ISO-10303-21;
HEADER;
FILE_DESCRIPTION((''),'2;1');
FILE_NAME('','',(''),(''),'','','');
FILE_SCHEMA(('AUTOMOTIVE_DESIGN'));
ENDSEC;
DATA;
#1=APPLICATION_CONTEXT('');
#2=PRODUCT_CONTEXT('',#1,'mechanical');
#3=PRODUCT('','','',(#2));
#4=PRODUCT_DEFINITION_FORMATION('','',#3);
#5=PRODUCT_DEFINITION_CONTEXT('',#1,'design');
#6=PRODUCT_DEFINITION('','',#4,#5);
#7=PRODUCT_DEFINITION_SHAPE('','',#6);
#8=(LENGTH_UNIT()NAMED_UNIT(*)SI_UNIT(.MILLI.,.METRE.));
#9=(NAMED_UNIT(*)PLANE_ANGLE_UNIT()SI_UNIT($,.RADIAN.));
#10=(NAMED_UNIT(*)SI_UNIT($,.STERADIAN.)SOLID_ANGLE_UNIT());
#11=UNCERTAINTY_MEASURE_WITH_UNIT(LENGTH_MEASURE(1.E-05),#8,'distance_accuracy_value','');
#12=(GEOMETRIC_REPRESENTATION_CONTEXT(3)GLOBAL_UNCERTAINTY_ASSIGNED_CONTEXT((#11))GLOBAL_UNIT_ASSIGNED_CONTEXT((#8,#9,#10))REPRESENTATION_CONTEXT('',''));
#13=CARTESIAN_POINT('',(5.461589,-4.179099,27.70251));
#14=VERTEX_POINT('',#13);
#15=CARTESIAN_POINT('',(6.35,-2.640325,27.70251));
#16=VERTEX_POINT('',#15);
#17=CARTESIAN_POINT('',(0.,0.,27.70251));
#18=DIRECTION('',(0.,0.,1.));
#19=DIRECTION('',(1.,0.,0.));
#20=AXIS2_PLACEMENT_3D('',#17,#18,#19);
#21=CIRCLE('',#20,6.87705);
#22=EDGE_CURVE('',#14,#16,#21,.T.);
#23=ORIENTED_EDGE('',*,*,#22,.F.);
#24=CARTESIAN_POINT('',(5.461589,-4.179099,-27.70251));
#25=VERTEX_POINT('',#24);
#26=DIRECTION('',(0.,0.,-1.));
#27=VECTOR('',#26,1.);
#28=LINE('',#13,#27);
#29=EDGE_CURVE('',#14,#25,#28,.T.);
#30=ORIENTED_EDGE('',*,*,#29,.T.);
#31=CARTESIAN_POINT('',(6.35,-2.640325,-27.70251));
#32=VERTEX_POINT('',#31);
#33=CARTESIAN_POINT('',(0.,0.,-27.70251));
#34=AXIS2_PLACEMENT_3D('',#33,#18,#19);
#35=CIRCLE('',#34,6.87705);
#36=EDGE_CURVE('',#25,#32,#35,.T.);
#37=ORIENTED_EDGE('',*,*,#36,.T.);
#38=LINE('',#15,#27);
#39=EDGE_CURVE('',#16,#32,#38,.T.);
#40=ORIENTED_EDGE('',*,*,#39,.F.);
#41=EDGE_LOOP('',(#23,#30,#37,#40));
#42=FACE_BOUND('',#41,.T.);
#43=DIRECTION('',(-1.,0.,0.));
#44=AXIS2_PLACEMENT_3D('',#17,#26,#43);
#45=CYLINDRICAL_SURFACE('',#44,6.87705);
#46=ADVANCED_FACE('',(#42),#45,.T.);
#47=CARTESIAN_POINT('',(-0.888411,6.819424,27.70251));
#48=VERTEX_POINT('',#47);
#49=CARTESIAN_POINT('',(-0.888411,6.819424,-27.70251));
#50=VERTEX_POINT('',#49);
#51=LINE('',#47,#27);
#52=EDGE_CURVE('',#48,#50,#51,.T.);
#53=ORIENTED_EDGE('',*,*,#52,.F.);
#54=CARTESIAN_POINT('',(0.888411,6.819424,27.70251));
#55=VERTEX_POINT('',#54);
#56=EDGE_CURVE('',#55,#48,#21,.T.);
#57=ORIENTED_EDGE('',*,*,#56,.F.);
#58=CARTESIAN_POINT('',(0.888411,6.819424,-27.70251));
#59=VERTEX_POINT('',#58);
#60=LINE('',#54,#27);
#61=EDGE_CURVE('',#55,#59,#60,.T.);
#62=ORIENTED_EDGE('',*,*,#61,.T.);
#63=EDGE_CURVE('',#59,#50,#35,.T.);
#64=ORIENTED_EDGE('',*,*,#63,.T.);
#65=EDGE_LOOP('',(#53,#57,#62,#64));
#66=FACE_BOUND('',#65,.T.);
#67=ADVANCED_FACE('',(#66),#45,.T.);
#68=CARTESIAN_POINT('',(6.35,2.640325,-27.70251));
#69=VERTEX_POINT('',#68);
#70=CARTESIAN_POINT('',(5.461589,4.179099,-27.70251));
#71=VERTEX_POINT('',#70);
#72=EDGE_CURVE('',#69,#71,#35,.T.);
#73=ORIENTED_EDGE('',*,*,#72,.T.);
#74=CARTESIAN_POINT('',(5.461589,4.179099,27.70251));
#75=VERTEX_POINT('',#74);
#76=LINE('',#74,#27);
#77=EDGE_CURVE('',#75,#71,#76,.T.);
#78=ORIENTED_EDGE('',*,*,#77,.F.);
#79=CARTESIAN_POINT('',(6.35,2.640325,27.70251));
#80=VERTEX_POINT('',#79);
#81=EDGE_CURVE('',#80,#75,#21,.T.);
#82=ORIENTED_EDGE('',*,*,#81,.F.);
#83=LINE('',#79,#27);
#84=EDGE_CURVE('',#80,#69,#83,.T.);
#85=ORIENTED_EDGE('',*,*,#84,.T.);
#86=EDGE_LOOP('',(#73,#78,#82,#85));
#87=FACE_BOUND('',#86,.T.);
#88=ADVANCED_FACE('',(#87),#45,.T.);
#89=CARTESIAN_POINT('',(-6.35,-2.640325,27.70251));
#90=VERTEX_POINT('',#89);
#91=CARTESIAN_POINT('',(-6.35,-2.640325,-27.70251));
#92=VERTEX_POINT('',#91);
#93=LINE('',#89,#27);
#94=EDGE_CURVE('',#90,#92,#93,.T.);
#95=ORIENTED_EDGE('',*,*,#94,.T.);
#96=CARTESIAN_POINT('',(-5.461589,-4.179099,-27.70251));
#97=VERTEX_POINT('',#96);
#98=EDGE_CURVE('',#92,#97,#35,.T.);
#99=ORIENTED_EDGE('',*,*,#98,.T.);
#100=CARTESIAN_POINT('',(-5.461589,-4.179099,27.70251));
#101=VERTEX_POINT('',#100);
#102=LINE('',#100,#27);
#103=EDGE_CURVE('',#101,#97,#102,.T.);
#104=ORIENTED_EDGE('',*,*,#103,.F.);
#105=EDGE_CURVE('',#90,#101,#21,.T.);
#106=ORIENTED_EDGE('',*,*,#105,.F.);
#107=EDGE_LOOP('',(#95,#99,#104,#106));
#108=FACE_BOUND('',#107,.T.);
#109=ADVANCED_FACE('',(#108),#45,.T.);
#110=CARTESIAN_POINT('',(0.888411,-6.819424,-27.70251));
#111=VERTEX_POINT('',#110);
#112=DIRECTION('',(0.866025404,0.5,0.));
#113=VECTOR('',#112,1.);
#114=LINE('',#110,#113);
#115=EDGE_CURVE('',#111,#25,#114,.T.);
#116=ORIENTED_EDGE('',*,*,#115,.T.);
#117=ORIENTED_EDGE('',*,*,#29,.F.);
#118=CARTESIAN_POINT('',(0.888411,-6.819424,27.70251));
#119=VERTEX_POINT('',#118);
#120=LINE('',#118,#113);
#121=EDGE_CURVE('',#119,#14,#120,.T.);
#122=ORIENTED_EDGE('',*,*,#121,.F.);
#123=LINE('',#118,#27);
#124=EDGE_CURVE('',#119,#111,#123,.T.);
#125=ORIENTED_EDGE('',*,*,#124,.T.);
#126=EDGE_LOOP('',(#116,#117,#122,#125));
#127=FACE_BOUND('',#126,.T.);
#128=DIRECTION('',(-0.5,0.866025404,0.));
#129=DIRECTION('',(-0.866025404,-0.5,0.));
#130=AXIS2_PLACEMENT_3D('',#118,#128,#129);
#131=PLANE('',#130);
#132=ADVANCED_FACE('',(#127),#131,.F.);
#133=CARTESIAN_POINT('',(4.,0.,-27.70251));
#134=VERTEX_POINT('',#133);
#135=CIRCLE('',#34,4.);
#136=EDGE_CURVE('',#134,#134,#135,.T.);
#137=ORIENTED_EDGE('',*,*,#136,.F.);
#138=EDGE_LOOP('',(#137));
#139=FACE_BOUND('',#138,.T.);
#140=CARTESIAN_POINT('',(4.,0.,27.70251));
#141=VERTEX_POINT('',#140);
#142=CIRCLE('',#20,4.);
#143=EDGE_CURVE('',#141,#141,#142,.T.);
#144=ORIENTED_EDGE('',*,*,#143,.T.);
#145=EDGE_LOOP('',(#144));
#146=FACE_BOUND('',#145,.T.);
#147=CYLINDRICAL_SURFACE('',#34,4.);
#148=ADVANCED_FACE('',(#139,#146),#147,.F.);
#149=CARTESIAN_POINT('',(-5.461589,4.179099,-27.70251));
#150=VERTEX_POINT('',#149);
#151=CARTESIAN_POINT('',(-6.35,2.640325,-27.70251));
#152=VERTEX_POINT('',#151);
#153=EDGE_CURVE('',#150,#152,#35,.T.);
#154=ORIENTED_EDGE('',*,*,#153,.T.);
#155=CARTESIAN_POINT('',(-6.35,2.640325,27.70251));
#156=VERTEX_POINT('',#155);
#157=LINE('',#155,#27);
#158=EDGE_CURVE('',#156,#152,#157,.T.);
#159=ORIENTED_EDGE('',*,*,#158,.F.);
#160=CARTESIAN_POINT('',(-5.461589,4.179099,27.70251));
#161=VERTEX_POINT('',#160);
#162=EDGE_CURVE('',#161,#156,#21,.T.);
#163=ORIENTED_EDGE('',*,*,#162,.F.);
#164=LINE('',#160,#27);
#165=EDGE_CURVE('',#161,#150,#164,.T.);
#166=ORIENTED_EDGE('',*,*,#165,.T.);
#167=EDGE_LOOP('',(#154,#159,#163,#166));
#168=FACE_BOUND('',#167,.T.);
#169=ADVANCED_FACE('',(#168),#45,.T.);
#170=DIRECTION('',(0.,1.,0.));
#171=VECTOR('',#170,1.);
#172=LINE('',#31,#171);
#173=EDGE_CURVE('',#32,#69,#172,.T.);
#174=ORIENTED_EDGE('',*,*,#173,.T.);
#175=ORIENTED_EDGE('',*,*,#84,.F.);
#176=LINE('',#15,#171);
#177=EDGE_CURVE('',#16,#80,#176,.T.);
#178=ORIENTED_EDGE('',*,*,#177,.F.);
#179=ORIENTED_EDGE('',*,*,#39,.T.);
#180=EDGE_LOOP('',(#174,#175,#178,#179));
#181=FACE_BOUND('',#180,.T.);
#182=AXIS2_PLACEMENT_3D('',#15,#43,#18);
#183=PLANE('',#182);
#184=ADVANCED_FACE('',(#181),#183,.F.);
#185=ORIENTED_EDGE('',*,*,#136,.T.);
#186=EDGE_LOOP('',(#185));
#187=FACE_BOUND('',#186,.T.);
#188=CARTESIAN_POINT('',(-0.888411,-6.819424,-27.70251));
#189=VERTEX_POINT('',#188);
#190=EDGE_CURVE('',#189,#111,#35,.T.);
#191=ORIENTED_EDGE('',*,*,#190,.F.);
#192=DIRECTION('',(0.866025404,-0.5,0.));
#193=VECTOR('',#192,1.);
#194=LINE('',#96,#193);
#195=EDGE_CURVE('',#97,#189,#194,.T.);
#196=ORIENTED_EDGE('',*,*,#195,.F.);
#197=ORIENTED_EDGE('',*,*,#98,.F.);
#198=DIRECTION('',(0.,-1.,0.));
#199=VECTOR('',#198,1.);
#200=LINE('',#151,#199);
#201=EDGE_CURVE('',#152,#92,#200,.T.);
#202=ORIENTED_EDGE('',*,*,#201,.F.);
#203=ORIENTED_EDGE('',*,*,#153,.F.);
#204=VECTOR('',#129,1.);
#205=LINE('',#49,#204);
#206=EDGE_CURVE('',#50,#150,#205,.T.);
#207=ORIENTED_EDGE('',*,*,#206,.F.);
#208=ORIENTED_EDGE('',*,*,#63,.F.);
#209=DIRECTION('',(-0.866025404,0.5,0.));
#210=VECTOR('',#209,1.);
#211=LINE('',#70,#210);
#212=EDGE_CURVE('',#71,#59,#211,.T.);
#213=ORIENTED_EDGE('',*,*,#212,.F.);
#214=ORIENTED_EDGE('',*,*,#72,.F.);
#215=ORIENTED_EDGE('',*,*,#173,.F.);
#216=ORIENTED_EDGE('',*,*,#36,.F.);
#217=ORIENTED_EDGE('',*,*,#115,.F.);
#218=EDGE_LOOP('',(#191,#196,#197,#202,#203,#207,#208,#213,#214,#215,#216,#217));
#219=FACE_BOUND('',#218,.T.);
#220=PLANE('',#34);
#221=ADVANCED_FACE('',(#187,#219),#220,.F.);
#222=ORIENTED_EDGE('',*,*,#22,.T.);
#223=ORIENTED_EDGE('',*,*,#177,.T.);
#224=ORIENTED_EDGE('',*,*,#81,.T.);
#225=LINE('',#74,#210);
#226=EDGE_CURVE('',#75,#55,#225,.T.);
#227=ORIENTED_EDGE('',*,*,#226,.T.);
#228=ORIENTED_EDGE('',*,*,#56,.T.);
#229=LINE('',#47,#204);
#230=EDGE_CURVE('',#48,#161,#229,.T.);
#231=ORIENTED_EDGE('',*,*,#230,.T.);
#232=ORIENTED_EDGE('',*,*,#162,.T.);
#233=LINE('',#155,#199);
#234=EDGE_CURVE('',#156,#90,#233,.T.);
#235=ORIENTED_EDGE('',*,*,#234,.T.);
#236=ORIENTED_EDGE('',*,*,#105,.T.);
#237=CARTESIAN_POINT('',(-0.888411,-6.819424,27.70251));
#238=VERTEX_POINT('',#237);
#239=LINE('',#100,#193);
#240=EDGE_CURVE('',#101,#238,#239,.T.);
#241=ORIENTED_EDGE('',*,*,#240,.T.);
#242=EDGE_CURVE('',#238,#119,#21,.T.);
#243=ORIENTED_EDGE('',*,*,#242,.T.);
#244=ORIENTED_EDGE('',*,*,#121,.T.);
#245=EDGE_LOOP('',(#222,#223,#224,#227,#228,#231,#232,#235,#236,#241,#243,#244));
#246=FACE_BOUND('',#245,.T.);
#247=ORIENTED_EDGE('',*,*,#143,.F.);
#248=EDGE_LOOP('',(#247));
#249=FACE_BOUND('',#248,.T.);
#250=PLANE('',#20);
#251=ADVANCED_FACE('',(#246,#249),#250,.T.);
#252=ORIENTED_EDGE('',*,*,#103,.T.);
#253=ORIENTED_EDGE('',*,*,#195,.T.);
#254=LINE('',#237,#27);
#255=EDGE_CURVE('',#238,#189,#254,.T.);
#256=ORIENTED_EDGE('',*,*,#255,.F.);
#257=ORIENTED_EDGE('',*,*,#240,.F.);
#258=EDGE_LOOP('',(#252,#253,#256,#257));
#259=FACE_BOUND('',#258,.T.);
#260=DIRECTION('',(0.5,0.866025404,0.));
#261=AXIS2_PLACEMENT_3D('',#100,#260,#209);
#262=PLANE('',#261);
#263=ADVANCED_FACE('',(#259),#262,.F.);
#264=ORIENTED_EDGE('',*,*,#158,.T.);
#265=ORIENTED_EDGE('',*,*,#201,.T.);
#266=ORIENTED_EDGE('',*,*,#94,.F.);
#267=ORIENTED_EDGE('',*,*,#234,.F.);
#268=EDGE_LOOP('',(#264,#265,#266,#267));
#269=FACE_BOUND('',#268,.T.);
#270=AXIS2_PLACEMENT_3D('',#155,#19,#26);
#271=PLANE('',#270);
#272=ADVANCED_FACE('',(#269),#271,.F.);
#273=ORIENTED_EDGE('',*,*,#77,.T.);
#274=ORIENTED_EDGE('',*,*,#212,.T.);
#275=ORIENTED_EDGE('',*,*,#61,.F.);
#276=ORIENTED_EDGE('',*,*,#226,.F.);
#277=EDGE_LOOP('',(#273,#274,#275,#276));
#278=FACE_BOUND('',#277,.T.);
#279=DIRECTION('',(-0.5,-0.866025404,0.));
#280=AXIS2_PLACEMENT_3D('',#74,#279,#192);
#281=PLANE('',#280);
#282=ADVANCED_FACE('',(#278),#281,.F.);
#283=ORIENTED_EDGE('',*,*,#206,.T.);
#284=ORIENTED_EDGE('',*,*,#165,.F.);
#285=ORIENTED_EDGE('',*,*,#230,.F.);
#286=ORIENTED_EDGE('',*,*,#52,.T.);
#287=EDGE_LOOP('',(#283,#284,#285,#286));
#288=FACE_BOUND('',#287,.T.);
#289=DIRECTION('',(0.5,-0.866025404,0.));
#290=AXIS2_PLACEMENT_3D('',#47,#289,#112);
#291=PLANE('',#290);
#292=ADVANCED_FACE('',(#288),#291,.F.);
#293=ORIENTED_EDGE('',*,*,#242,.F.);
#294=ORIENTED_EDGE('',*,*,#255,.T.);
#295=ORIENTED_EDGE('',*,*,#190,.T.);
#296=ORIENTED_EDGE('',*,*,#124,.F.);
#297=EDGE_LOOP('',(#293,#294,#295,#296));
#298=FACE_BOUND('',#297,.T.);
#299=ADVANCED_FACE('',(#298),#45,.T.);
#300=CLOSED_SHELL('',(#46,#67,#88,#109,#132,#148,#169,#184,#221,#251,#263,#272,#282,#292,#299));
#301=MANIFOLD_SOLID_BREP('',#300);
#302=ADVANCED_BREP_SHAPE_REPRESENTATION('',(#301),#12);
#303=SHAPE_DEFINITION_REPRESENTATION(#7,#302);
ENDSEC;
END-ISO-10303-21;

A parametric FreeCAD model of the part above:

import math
import FreeCAD as App
import Part
import Sketcher
from FreeCAD import Vector
Q = App.Units.Quantity

doc = App.newDocument("Part")
params = doc.addObject("Spreadsheet::Sheet", "Params")
for row, (alias, value) in enumerate([
    ("sketch1_diameter", "12.7 mm"),
    ("pad1_length", "27.70251 mm"),
    ("pad1_length2", "27.70251 mm"),
    ("pad2_length", "55.40502 mm"),
    ("sketch3_diameter", "8 mm"),
], start=1):
    params.set(f"A{row}", alias)
    params.set(f"B{row}", "=" + value)
    params.setAlias(f"B{row}", alias)

body = doc.addObject("PartDesign::Body", "Body")

sketch1 = body.newObject("Sketcher::SketchObject", "Sketch")
sketch1.AttachmentSupport = (doc.getObject("XY_Plane"), [""])
sketch1.MapMode = "FlatFace"
sketch1.addGeometry(Part.Circle(Vector(0, 0, 0), Vector(0, 0, 1), 6), False)
sketch1.addConstraint([
    Sketcher.Constraint("Coincident", 0, 3, -1, 1),
    Sketcher.Constraint("Diameter", 0, 12.7),
])
sketch1.setExpression("Constraints[1]", "Params.sketch1_diameter")
pad1 = body.newObject("PartDesign::Pad", "Pad")
pad1.Profile = sketch1
pad1.Type = "TwoLengths"
pad1.setExpression("Length", "Params.pad1_length")
pad1.setExpression("Length2", "Params.pad1_length2")

sketch2 = body.newObject("Sketcher::SketchObject", "Sketch001")
sketch2.AttachmentSupport = (doc.getObject("XY_Plane"), [""])
sketch2.MapMode = "FlatFace"
sketch2.addGeometry([
    Part.LineSegment(Vector(-0.9, 6.8, 0), Vector(-5.5, 4.2, 0)),
    Part.ArcOfCircle(Part.Circle(Vector(0, 0, 0), Vector(0, 0, 1), 6.9), math.radians(142.58), math.radians(157.42)),
    Part.LineSegment(Vector(-6.3, 2.6, 0), Vector(-6.3, -2.6, 0)),
    Part.ArcOfCircle(Part.Circle(Vector(0, 0, 0), Vector(0, 0, 1), 6.9), math.radians(-157.42), math.radians(-142.58)),
    Part.LineSegment(Vector(-5.5, -4.2, 0), Vector(-0.9, -6.8, 0)),
    Part.ArcOfCircle(Part.Circle(Vector(0, 0, 0), Vector(0, 0, 1), 6.9), math.radians(-97.42), math.radians(-82.58)),
    Part.LineSegment(Vector(0.9, -6.8, 0), Vector(5.5, -4.2, 0)),
    Part.ArcOfCircle(Part.Circle(Vector(0, 0, 0), Vector(0, 0, 1), 6.9), math.radians(-37.42), math.radians(-22.58)),
    Part.LineSegment(Vector(6.3, -2.6, 0), Vector(6.3, 2.6, 0)),
    Part.ArcOfCircle(Part.Circle(Vector(0, 0, 0), Vector(0, 0, 1), 6.9), math.radians(22.58), math.radians(37.42)),
    Part.LineSegment(Vector(5.5, 4.2, 0), Vector(0.9, 6.8, 0)),
    Part.ArcOfCircle(Part.Circle(Vector(0, 0, 0), Vector(0, 0, 1), 6.9), math.radians(82.58), math.radians(97.42)),
], False)
sketch2.addConstraint([
    Sketcher.Constraint("Coincident", 0, 2, 1, 1),
    Sketcher.Constraint("Coincident", 1, 2, 2, 1),
    Sketcher.Constraint("Coincident", 2, 2, 3, 1),
    Sketcher.Constraint("Coincident", 3, 2, 4, 1),
    Sketcher.Constraint("Coincident", 4, 2, 5, 1),
    Sketcher.Constraint("Coincident", 5, 2, 6, 1),
    Sketcher.Constraint("Coincident", 6, 2, 7, 1),
    Sketcher.Constraint("Coincident", 7, 2, 8, 1),
    Sketcher.Constraint("Coincident", 8, 2, 9, 1),
    Sketcher.Constraint("Coincident", 9, 2, 10, 1),
    Sketcher.Constraint("Coincident", 10, 2, 11, 1),
    Sketcher.Constraint("Coincident", 11, 2, 0, 1),
    Sketcher.Constraint("Vertical", 2),
    Sketcher.Constraint("Vertical", 8),
    Sketcher.Constraint("Coincident", 1, 3, -1, 1),
    Sketcher.Constraint("Coincident", 3, 3, -1, 1),
    Sketcher.Constraint("Coincident", 5, 3, -1, 1),
    Sketcher.Constraint("Coincident", 7, 3, -1, 1),
    Sketcher.Constraint("Coincident", 9, 3, -1, 1),
    Sketcher.Constraint("Coincident", 11, 3, -1, 1),
    Sketcher.Constraint("Equal", 1, 3),
    Sketcher.Constraint("Equal", 3, 5),
    Sketcher.Constraint("Equal", 5, 7),
    Sketcher.Constraint("Equal", 7, 9),
    Sketcher.Constraint("Equal", 9, 11),
    Sketcher.Constraint("Parallel", 0, 6),
    Sketcher.Constraint("Parallel", 4, 10),
    Sketcher.Constraint("Horizontal", 4, 2, 5, 2),
    Sketcher.Constraint("Horizontal", 3, 2, 6, 2),
    Sketcher.Constraint("Horizontal", 2, 2, 7, 2),
    Sketcher.Constraint("Horizontal", 0, 2, 9, 2),
    Sketcher.Constraint("Vertical", 0, 2, 3, 2),
    Sketcher.Constraint("Angle", 0, Q("-150 deg")),
    Sketcher.Constraint("DistanceX", 1, 2, -1, 1, 6.35),
    Sketcher.Constraint("Radius", 1, 6.87705),
    Sketcher.Constraint("DistanceX", 3, 2, 5, 2, 6.35),
])
pad2 = body.newObject("PartDesign::Pad", "Pad001")
pad2.Profile = sketch2
pad2.setExpression("Length", "Params.pad2_length")
pad2.Midplane = True

sketch3 = body.newObject("Sketcher::SketchObject", "Sketch002")
sketch3.AttachmentSupport = (doc.getObject("XY_Plane"), [""])
sketch3.MapMode = "FlatFace"
sketch3.addGeometry(Part.Circle(Vector(0, 0, 0), Vector(0, 0, 1), 4), False)
sketch3.addConstraint([
    Sketcher.Constraint("Coincident", 0, 3, -1, 1),
    Sketcher.Constraint("Diameter", 0, 8.0),
])
sketch3.setExpression("Constraints[1]", "Params.sketch3_diameter")
pocket1 = body.newObject("PartDesign::Pocket", "Pocket")
pocket1.Profile = sketch3
pocket1.Type = "ThroughAll"
pocket1.Midplane = True

doc.recompute()
